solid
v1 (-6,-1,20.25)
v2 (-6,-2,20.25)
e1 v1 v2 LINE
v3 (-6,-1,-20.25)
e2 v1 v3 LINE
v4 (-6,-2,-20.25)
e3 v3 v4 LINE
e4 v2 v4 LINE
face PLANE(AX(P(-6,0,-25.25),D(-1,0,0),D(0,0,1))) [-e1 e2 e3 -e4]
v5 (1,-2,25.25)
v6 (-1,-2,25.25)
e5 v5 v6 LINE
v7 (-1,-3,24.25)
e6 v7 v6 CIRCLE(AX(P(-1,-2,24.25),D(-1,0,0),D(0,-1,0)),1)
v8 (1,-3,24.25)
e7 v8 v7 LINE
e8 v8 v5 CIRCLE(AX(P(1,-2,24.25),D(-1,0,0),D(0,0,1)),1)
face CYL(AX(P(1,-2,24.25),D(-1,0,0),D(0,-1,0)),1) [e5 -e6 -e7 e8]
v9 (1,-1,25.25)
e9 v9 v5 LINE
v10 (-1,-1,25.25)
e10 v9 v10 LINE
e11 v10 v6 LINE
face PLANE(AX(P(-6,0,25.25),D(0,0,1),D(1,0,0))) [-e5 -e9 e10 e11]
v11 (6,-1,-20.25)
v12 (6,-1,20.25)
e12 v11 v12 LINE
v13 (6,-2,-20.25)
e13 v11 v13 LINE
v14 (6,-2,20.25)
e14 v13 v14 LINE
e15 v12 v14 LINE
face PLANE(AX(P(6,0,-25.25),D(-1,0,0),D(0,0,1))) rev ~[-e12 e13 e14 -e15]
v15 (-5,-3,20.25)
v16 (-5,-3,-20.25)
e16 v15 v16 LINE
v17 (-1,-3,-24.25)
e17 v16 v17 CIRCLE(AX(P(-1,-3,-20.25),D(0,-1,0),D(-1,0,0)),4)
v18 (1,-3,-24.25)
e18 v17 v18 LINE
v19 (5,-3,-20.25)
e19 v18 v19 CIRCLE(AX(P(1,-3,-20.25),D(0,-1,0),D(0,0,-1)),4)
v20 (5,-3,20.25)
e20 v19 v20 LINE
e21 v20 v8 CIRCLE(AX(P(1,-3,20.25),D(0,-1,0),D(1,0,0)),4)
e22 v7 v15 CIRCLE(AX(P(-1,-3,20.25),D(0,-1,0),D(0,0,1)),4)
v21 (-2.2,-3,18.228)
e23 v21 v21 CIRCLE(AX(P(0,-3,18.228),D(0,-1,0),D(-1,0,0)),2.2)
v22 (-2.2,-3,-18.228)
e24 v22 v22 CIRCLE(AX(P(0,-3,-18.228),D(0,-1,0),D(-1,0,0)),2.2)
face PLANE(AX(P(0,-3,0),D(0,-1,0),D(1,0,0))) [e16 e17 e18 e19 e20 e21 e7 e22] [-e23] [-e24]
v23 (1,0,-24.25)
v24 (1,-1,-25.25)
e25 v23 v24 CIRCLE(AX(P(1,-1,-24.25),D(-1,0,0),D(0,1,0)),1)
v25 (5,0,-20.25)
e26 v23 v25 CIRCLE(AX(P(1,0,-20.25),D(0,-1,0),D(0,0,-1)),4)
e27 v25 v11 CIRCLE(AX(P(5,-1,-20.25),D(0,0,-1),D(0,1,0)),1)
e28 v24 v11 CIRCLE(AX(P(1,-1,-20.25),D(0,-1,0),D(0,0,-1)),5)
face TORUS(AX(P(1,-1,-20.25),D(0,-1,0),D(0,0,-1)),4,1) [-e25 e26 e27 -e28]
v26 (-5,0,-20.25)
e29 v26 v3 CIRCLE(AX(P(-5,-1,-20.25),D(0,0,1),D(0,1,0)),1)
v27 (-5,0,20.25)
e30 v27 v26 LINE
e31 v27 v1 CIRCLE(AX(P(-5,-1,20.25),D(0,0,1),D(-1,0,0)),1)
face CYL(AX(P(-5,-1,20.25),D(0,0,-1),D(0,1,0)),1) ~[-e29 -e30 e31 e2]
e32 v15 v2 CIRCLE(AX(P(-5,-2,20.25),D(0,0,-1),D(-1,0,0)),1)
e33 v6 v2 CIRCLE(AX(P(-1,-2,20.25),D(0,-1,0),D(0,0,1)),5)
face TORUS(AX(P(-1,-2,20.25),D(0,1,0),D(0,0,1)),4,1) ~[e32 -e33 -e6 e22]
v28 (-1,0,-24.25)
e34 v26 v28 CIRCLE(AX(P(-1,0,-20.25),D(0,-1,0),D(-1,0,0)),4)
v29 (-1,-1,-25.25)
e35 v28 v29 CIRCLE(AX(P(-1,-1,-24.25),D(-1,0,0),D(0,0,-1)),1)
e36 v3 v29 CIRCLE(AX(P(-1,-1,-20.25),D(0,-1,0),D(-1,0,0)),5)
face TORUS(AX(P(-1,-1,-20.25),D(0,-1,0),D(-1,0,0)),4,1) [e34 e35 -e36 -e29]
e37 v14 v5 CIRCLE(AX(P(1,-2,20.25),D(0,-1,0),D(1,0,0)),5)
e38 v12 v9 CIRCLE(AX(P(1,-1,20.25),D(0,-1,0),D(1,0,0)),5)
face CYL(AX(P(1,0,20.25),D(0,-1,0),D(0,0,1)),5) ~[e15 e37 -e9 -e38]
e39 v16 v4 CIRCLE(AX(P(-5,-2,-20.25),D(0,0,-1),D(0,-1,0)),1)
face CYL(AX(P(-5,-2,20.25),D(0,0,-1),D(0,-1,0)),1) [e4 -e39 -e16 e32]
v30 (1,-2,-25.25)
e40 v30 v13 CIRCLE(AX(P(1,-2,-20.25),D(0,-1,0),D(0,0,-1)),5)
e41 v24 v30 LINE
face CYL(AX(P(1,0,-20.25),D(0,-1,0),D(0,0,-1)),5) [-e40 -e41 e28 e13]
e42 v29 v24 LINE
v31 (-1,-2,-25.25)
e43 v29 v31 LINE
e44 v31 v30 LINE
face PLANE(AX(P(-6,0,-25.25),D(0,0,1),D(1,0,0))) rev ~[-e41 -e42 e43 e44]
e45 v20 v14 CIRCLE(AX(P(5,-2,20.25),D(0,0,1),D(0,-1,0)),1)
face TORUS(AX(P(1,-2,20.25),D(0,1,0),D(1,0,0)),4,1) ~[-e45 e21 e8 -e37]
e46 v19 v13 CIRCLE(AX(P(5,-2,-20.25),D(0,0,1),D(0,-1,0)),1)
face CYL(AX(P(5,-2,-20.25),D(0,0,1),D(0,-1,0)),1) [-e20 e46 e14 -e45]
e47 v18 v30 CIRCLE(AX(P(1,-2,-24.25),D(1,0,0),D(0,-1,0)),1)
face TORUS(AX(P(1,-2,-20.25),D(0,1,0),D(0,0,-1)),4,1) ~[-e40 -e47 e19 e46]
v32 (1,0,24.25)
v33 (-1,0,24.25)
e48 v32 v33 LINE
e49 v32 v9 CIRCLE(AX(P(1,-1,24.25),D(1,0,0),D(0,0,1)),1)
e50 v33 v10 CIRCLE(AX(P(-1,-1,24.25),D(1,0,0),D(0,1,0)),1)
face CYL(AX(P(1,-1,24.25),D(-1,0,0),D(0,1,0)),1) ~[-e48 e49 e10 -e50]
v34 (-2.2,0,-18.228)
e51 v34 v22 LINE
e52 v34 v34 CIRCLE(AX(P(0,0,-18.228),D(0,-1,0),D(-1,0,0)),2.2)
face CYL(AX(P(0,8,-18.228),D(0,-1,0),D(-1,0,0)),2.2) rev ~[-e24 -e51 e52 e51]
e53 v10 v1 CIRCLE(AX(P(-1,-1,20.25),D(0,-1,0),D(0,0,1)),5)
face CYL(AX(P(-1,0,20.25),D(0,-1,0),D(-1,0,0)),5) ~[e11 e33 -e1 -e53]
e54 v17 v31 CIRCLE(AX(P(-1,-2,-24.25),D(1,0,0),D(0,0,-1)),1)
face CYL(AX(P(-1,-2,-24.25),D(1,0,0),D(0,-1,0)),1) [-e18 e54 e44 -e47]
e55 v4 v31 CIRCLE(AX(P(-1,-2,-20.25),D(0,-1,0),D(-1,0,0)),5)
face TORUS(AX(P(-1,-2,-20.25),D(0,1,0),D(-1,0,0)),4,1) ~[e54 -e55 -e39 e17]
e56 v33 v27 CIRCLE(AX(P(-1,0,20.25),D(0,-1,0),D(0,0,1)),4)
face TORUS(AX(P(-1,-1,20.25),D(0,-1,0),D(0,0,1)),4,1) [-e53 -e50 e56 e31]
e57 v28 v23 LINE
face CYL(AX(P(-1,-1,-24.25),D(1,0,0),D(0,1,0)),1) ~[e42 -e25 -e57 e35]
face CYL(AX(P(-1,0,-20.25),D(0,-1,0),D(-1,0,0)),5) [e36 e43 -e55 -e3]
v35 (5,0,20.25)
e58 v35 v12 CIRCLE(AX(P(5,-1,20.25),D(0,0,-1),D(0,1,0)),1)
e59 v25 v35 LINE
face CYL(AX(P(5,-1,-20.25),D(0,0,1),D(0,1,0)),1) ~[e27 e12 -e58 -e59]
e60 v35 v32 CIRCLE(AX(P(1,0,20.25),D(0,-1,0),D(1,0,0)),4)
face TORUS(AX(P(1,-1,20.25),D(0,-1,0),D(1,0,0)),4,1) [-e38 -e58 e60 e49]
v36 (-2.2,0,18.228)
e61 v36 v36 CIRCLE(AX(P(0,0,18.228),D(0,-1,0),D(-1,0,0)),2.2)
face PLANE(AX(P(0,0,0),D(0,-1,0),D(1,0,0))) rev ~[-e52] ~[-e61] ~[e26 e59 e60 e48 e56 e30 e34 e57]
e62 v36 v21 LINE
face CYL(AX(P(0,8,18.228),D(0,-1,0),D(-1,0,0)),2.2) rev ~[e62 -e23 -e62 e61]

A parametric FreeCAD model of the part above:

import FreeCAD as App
import Part
import Sketcher
from FreeCAD import Vector
Q = App.Units.Quantity


def edges_at(feature, points):
    """Names of the edges that pass closest to the given points."""
    edges = feature.Shape.Edges
    near = lambda p: min(range(len(edges)), key=lambda i: edges[i].distToShape(Part.Vertex(*p))[0])
    return sorted({f"Edge{near(p) + 1}" for p in points})

doc = App.newDocument("Part")
params = doc.addObject("Spreadsheet::Sheet", "Params")
for row, (alias, value) in enumerate([
    ("sketch1_width", "12 mm"),
    ("sketch1_height", "50.5 mm"),
    ("pad1_length", "3 mm"),
    ("sketch2_diameter", "4.4 mm"),
    ("hole_diameter", "4.4 mm"),
    ("hole_depth", "70 mm"),
    ("hole_cbore_diameter", "8.25 mm"),
    ("hole_cbore_depth", "4 mm"),
    ("fillet_radius", "5 mm"),
    ("fillet2_radius", "1 mm"),
], start=1):
    params.set(f"A{row}", alias)
    params.set(f"B{row}", "=" + value)
    params.setAlias(f"B{row}", alias)

body = doc.addObject("PartDesign::Body", "Body")

# Sketch on XZ plane
sketch1 = body.newObject("Sketcher::SketchObject", "Sketch")
sketch1.AttachmentSupport = (doc.getObject("XZ_Plane"), [""])
sketch1.MapMode = "FlatFace"
sketch1.addGeometry([
    Part.LineSegment(Vector(-6, 25, 0), Vector(-6, -25, 0)),
    Part.LineSegment(Vector(-6, -25, 0), Vector(6, -25, 0)),
    Part.LineSegment(Vector(6, -25, 0), Vector(6, 25, 0)),
    Part.LineSegment(Vector(6, 25, 0), Vector(-6, 25, 0)),
], False)
sketch1.addConstraint([
    Sketcher.Constraint("Coincident", 0, 2, 1, 1),
    Sketcher.Constraint("Coincident", 1, 2, 2, 1),
    Sketcher.Constraint("Coincident", 2, 2, 3, 1),
    Sketcher.Constraint("Coincident", 3, 2, 0, 1),
    Sketcher.Constraint("Vertical", 0),
    Sketcher.Constraint("Horizontal", 1),
    Sketcher.Constraint("Vertical", 2),
    Sketcher.Constraint("Horizontal", 3),
    Sketcher.Constraint("Symmetric", 0, 2, 2, 2, -1, 1),
    Sketcher.Constraint("DistanceX", 1, 1, 1, 2, Q("12 mm")),
    Sketcher.Constraint("DistanceY", 0, 2, 0, 1, Q("50.5 mm")),
])
sketch1.setExpression("Constraints[9]", "Params.sketch1_width")
sketch1.setExpression("Constraints[10]", "Params.sketch1_height")
pad1 = body.newObject("PartDesign::Pad", "Pad")
pad1.Profile = sketch1
pad1.setExpression("Length", "Params.pad1_length")

# Sketch on XZ plane
sketch2 = body.newObject("Sketcher::SketchObject", "Sketch001")
sketch2.AttachmentSupport = (doc.getObject("XZ_Plane"), [""])
sketch2.MapMode = "FlatFace"
sketch2.AttachmentOffset = App.Placement(Vector(0, 0, -8), App.Rotation())
sketch2.addGeometry([
    Part.Circle(Vector(0, -18.2, 0), Vector(0, 0, 1), 2.2),
    Part.Circle(Vector(0, 18.2, 0), Vector(0, 0, 1), 2.2),
], False)
sketch2.addConstraint([
    Sketcher.Constraint("Equal", 0, 1),
    Sketcher.Constraint("Symmetric", 0, 3, 1, 3, -1, 1),
    Sketcher.Constraint("PointOnObject", 0, 3, -2),
    Sketcher.Constraint("Diameter", 0, Q("4.4 mm")),
    Sketcher.Constraint("DistanceY", 0, 3, -1, 1, Q("18.228 mm")),
])
sketch2.setExpression("Constraints[3]", "Params.sketch2_diameter")
doc.recompute()
hole = body.newObject("PartDesign::Hole", "Hole")
hole.Profile = sketch2
hole.ThreadType = "None"
hole.setExpression("Diameter", "Params.hole_diameter")
hole.DepthType = "Dimension"
hole.setExpression("Depth", "Params.hole_depth")
hole.DrillPoint = "Flat"
hole.HoleCutType = "Counterbore"
hole.setExpression("HoleCutDiameter", "Params.hole_cbore_diameter")
hole.setExpression("HoleCutDepth", "Params.hole_cbore_depth")
hole.Reversed = True
doc.recompute()

fillet = body.newObject("PartDesign::Fillet", "Fillet")
fillet.Base = (hole, edges_at(hole, [
    (-6, -1.5, 25.25),
    (6, -1.5, 25.25),
    (-6, -1.5, -25.25),
    (6, -1.5, -25.25),
]))
fillet.setExpression("Radius", "Params.fillet_radius")
doc.recompute()

fillet2 = body.newObject("PartDesign::Fillet", "Fillet001")
fillet2.Base = (fillet, edges_at(fillet, [(6, 0, 0), (6, -3, 0)]))
fillet2.setExpression("Radius", "Params.fillet2_radius")

doc.recompute()
